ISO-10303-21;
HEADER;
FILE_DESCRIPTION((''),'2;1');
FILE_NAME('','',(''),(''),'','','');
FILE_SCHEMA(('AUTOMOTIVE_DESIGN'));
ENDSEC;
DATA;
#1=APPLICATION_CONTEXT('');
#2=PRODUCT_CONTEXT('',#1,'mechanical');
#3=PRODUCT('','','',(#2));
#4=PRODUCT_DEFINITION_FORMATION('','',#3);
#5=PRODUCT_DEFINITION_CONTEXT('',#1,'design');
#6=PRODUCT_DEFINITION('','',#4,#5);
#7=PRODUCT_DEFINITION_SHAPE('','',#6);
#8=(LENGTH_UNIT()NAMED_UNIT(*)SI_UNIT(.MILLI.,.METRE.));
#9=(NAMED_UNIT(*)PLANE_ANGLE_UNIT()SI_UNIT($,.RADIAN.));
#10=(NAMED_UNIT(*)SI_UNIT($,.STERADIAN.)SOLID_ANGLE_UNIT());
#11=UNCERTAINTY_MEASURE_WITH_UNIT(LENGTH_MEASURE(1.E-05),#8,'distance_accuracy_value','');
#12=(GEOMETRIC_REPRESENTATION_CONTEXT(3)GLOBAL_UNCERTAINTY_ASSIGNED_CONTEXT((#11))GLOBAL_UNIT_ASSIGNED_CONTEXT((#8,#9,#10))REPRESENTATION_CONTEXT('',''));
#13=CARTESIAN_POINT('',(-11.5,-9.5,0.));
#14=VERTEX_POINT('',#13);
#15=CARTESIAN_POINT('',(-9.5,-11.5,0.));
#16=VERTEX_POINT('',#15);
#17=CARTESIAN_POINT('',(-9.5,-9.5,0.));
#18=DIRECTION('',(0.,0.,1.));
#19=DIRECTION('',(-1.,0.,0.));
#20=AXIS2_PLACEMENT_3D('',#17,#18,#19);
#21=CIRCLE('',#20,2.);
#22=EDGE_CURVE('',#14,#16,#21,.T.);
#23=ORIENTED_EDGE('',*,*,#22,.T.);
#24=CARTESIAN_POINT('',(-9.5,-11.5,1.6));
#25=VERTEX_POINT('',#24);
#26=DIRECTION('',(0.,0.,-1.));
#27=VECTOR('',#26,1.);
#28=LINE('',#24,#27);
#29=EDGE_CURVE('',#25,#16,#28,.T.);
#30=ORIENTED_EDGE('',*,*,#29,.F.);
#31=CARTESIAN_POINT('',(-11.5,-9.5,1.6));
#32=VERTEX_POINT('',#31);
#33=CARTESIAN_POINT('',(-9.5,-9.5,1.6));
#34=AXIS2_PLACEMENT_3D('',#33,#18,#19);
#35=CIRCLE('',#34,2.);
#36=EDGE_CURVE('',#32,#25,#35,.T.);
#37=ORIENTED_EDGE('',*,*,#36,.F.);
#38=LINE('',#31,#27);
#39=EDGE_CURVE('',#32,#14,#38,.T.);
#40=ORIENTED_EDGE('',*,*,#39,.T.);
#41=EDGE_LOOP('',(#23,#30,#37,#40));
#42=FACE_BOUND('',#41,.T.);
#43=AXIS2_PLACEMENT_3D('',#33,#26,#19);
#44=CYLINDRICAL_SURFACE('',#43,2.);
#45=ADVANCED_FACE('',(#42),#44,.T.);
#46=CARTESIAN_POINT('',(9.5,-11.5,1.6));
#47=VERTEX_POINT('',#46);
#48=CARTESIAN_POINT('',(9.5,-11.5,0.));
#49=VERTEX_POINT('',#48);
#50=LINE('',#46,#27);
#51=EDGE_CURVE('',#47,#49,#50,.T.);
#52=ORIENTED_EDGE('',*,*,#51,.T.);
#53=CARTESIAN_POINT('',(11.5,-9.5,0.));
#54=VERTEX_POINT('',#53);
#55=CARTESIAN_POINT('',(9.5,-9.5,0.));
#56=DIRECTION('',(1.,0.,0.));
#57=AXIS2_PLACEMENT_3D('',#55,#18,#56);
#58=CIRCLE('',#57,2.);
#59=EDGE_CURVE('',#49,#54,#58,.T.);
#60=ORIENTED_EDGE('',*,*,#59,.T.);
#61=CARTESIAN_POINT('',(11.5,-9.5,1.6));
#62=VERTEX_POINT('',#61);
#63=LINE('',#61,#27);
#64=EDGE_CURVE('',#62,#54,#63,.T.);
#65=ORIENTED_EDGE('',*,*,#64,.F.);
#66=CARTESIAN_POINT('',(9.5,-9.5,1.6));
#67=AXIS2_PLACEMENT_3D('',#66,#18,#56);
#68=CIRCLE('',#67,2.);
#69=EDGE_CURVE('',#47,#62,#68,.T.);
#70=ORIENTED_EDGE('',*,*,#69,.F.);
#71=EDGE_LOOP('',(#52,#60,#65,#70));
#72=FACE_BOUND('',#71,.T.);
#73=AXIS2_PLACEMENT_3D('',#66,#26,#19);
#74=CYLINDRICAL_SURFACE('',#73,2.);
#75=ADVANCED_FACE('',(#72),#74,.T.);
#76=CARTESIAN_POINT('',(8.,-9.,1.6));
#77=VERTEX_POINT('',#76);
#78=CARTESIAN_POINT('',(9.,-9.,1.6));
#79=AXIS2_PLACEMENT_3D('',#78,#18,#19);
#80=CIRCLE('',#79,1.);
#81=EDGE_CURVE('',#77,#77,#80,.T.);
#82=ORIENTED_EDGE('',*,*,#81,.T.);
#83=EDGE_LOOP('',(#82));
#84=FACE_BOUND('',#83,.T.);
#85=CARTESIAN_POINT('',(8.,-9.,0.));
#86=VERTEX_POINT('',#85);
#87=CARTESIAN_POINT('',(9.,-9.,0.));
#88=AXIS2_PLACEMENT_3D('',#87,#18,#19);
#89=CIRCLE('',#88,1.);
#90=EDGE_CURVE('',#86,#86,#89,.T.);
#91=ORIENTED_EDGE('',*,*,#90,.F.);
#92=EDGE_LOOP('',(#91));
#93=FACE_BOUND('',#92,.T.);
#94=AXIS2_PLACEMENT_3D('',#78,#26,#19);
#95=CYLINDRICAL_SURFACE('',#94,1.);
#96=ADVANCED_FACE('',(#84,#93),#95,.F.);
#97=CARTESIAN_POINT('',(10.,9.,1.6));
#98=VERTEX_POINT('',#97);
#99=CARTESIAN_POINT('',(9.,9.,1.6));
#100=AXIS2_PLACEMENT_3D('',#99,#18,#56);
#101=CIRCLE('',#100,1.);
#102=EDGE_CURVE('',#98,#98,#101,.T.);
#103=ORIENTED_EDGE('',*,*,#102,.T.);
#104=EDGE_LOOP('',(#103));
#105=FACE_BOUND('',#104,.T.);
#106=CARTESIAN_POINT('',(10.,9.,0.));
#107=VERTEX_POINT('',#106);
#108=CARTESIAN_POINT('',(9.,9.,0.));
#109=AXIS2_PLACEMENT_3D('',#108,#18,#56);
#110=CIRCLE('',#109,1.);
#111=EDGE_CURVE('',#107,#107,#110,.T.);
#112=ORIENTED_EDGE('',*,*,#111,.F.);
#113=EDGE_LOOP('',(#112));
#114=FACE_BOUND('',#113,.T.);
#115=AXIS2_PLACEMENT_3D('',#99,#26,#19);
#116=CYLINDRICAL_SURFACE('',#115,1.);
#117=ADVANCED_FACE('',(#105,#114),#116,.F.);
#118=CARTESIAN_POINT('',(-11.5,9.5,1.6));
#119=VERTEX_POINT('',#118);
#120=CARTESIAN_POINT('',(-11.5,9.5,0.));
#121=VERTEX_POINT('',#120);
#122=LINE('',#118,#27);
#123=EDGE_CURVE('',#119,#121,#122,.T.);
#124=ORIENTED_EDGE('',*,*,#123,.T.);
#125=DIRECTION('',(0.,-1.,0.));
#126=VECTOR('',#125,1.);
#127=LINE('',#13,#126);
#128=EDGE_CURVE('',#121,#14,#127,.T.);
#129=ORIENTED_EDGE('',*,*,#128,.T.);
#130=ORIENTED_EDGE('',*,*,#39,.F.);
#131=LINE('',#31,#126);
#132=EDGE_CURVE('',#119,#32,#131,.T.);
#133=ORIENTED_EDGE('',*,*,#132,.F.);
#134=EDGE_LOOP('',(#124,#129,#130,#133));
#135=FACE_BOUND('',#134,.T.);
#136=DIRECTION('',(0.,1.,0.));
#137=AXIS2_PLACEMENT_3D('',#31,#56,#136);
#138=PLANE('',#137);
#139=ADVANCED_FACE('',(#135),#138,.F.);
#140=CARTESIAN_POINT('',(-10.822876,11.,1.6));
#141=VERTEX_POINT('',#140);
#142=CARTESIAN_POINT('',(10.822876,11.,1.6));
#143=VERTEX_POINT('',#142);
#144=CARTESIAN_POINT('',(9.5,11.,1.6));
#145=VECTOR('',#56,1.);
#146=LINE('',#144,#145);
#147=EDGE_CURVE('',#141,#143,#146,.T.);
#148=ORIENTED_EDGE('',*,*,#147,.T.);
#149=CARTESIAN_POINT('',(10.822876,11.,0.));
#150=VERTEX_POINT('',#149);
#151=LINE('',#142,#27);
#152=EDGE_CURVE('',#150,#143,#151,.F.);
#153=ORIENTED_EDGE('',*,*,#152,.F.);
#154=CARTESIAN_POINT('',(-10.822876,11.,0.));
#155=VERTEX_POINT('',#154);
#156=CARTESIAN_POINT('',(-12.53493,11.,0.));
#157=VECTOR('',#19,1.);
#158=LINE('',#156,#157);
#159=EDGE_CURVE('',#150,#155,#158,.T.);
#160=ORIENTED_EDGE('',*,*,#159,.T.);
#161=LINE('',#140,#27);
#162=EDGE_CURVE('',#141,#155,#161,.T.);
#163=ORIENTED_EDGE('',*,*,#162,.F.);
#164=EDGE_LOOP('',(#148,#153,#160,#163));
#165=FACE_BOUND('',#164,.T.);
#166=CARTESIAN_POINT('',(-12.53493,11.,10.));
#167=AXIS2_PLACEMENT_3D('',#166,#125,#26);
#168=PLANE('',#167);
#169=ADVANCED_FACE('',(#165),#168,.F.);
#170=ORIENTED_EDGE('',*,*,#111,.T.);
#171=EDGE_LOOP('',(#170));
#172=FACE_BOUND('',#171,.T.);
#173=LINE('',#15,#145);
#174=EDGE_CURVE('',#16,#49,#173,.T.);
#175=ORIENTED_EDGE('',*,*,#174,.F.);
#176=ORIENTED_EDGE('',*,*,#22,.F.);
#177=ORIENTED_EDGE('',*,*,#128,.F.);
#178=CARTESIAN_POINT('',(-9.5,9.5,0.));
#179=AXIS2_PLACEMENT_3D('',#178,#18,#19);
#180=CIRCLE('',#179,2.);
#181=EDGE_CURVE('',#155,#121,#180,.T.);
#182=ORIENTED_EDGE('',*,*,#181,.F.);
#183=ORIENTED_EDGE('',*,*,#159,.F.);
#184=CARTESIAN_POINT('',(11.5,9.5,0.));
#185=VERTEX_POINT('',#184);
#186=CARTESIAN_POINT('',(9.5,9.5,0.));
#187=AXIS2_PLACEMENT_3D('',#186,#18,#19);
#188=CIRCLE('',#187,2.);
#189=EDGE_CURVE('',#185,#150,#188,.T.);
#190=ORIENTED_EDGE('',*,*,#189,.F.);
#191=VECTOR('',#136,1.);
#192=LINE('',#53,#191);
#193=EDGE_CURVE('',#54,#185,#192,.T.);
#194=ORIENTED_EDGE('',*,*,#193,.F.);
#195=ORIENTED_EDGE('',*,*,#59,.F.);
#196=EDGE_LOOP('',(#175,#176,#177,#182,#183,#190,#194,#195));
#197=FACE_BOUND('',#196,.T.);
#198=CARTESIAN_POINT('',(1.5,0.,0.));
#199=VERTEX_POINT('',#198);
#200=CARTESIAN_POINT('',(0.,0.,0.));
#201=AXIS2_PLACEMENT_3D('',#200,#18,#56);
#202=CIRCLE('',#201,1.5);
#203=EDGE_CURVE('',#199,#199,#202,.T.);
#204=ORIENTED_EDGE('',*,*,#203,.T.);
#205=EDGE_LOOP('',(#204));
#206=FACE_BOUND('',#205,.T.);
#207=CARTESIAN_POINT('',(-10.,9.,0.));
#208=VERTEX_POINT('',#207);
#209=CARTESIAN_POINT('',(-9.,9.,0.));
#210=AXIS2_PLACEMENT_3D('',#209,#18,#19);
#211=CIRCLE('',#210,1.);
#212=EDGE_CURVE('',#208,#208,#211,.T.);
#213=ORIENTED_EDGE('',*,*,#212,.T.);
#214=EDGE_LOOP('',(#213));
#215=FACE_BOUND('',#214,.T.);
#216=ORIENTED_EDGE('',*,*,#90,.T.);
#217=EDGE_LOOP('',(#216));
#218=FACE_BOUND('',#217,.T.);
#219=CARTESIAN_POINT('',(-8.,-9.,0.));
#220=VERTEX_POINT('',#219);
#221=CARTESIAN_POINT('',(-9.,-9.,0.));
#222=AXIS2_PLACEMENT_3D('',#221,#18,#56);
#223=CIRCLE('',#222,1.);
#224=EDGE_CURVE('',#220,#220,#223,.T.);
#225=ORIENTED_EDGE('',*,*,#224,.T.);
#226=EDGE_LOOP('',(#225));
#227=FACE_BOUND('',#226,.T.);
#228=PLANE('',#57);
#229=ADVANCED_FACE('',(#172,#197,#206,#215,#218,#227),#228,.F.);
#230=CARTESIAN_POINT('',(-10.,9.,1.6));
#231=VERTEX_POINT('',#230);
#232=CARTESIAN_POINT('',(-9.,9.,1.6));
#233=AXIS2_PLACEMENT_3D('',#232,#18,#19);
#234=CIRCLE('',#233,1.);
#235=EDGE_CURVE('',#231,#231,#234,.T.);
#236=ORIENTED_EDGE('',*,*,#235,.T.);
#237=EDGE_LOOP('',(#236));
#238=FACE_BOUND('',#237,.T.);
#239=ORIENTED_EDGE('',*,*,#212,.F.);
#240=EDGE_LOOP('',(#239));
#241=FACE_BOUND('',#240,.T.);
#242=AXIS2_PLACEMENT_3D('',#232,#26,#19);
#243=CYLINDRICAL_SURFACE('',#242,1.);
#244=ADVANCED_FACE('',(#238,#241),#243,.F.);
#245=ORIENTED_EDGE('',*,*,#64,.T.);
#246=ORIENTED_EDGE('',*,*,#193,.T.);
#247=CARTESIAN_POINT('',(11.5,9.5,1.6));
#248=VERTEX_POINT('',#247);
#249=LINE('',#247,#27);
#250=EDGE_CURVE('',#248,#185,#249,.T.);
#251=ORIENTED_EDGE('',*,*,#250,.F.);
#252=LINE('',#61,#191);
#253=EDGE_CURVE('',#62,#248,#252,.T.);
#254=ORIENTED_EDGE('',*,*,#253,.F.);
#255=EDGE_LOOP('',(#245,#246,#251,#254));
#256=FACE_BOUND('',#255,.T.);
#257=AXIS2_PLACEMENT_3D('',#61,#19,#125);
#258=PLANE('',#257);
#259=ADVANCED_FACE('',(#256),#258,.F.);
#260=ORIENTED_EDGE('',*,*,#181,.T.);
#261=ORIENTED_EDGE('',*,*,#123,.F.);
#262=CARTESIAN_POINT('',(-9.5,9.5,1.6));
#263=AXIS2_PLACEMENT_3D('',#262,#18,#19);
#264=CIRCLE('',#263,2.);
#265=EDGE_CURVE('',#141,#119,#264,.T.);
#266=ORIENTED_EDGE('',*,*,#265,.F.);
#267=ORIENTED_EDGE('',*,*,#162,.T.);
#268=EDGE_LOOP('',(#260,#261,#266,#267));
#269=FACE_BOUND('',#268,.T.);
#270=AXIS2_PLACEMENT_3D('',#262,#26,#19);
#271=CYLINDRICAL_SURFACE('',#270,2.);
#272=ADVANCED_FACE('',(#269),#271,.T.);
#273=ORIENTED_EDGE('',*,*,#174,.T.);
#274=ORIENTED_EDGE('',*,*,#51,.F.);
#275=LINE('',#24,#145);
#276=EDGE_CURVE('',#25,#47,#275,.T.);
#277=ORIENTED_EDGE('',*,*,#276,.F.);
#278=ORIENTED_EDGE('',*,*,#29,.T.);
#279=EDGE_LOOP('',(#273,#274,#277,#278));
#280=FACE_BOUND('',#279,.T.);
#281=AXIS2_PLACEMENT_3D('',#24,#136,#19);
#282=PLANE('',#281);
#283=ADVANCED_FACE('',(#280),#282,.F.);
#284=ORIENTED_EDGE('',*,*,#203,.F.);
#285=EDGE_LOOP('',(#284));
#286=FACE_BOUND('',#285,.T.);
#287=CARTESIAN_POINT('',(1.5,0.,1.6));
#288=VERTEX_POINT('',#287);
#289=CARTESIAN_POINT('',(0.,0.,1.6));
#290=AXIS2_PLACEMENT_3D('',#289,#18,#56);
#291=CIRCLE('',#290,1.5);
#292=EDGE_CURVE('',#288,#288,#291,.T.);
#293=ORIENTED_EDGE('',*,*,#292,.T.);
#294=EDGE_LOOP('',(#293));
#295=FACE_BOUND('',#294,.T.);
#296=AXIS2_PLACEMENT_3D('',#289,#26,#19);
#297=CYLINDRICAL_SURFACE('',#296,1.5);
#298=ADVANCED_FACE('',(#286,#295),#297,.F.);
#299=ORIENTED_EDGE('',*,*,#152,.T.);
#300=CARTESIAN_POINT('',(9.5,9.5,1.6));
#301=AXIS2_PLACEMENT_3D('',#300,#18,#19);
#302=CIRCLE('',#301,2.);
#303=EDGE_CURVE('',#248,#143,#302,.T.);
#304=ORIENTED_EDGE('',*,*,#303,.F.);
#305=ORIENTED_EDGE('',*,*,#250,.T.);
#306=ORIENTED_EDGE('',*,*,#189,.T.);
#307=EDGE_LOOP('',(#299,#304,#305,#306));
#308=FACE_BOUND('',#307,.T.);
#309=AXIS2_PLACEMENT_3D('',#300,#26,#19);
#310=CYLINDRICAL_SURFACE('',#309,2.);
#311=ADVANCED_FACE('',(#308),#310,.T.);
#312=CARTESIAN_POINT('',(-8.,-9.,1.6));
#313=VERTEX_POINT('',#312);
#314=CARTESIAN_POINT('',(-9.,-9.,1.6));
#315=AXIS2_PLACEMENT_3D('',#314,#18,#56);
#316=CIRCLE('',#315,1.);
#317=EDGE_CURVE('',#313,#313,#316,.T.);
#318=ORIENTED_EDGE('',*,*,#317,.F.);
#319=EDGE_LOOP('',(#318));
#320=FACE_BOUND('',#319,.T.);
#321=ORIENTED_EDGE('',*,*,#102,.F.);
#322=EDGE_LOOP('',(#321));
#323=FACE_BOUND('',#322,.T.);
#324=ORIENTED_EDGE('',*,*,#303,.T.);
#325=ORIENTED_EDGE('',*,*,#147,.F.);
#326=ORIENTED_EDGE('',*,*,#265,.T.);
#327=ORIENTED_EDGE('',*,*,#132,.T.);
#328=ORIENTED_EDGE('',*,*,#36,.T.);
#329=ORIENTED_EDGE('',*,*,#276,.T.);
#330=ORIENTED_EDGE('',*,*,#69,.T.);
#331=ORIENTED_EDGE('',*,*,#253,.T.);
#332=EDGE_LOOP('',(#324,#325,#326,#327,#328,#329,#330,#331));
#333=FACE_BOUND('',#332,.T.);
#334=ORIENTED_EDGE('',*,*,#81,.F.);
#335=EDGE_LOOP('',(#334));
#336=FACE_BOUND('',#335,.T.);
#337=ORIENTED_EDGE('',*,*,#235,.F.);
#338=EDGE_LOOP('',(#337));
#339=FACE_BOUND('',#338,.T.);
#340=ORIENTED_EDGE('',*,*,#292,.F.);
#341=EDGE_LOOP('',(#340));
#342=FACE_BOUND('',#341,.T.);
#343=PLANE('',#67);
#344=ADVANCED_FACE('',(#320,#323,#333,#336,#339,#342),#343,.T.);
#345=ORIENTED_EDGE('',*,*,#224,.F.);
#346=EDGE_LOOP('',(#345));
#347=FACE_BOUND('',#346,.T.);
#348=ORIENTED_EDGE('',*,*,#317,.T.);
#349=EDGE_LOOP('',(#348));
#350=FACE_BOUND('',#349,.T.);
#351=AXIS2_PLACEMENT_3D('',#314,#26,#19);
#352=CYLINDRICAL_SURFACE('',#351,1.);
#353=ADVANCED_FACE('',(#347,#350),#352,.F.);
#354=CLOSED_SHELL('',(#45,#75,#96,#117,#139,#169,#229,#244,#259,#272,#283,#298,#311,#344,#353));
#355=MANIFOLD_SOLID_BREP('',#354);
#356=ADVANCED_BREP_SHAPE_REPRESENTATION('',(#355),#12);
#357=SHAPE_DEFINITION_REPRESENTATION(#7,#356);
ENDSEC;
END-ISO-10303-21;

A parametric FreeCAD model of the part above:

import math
import FreeCAD as App
import Part
import Sketcher
Q = App.Units.Quantity

doc = App.newDocument("Part")
body = doc.addObject("PartDesign::Body", "Body")

sketch1 = body.newObject("Sketcher::SketchObject", "Sketch")
sketch1.AttachmentSupport = (doc.getObject("XY_Plane"), [""])
sketch1.MapMode = "FlatFace"
sketch1.addGeometry([
    Part.LineSegment(App.Vector(-9.5, -11.5, 0), App.Vector(9.5, -11.5, 0)),
    Part.ArcOfCircle(Part.Circle(App.Vector(9.5, -9.5, 0), App.Vector(0, 0, 1), 2), math.radians(-90), math.radians(0)),
    Part.LineSegment(App.Vector(11.5, -9.5, 0), App.Vector(11.5, 9.5, 0)),
    Part.ArcOfCircle(Part.Circle(App.Vector(9.5, 9.5, 0), App.Vector(0, 0, 1), 2), math.radians(0), math.radians(90)),
    Part.LineSegment(App.Vector(9.5, 11.5, 0), App.Vector(-9.5, 11.5, 0)),
    Part.ArcOfCircle(Part.Circle(App.Vector(-9.5, 9.5, 0), App.Vector(0, 0, 1), 2), math.radians(90), math.radians(180)),
    Part.LineSegment(App.Vector(-11.5, 9.5, 0), App.Vector(-11.5, -9.5, 0)),
    Part.ArcOfCircle(Part.Circle(App.Vector(-9.5, -9.5, 0), App.Vector(0, 0, 1), 2), math.radians(-180), math.radians(-90)),
    Part.Circle(App.Vector(-9, -9, 0), App.Vector(0, 0, 1), 1),
    Part.Circle(App.Vector(9, -9, 0), App.Vector(0, 0, 1), 1),
    Part.Circle(App.Vector(-9, 9, 0), App.Vector(0, 0, 1), 1),
    Part.Circle(App.Vector(0, 0, 0), App.Vector(0, 0, 1), 1.5),
    Part.Circle(App.Vector(9, 9, 0), App.Vector(0, 0, 1), 1),
], False)
sketch1.addConstraint([
    Sketcher.Constraint("Tangent", 0, 2, 1, 1),
    Sketcher.Constraint("Tangent", 1, 2, 2, 1),
    Sketcher.Constraint("Tangent", 2, 2, 3, 1),
    Sketcher.Constraint("Tangent", 3, 2, 4, 1),
    Sketcher.Constraint("Tangent", 4, 2, 5, 1),
    Sketcher.Constraint("Tangent", 5, 2, 6, 1),
    Sketcher.Constraint("Tangent", 6, 2, 7, 1),
    Sketcher.Constraint("Tangent", 7, 2, 0, 1),
    Sketcher.Constraint("Horizontal", 0),
    Sketcher.Constraint("Vertical", 2),
    Sketcher.Constraint("Horizontal", 4),
    Sketcher.Constraint("Vertical", 6),
    Sketcher.Constraint("Coincident", 11, 3, -1, 1),
    Sketcher.Constraint("Equal", 1, 3),
    Sketcher.Constraint("Equal", 3, 5),
    Sketcher.Constraint("Equal", 5, 7),
    Sketcher.Constraint("Equal", 8, 9),
    Sketcher.Constraint("Equal", 9, 10),
    Sketcher.Constraint("Equal", 10, 12),
    Sketcher.Constraint("Symmetric", 1, 3, 5, 3, -1, 1),
    Sketcher.Constraint("Symmetric", 9, 3, 10, 3, -1, 1),
    Sketcher.Constraint("Symmetric", 8, 3, 12, 3, -1, 1),
    Sketcher.Constraint("Symmetric", 8, 3, 9, 3, -2),
    Sketcher.Constraint("Equal", 4, 2),
    Sketcher.Constraint("Diameter", 8, Q("2 mm")),
    Sketcher.Constraint("Diameter", 11, Q("3 mm")),
    Sketcher.Constraint("Radius", 1, Q("2 mm")),
    Sketcher.Constraint("DistanceX", 0, 1, 0, 2, Q("19 mm")),
    Sketcher.Constraint("DistanceX", 8, 3, -1, 1, Q("9 mm")),
    Sketcher.Constraint("DistanceY", 8, 3, -1, 1, Q("9 mm")),
])
pad1 = body.newObject("PartDesign::Pad", "Pad")
pad1.Profile = sketch1
pad1.Length = 1.6

sketch2 = body.newObject("Sketcher::SketchObject", "Sketch001")
sketch2.AttachmentSupport = (doc.getObject("XY_Plane"), [""])
sketch2.MapMode = "FlatFace"
sketch2.addGeometry([
    Part.LineSegment(App.Vector(18.249988, 12.249694, 0), App.Vector(18.249988, 11, 0)),
    Part.LineSegment(App.Vector(18.249988, 11, 0), App.Vector(-12.53493, 11, 0)),
    Part.LineSegment(App.Vector(-12.53493, 11, 0), App.Vector(-12.53493, 12.249694, 0)),
    Part.LineSegment(App.Vector(-12.53493, 12.249694, 0), App.Vector(18.249988, 12.249694, 0)),
], False)
sketch2.addConstraint([
    Sketcher.Constraint("Coincident", 0, 2, 1, 1),
    Sketcher.Constraint("Coincident", 1, 2, 2, 1),
    Sketcher.Constraint("Coincident", 2, 2, 3, 1),
    Sketcher.Constraint("Coincident", 3, 2, 0, 1),
    Sketcher.Constraint("Vertical", 0),
    Sketcher.Constraint("Horizontal", 1),
    Sketcher.Constraint("Vertical", 2),
    Sketcher.Constraint("Horizontal", 3),
    Sketcher.Constraint("DistanceY", -1, 1, 0, 2, Q("11 mm")),
    Sketcher.Constraint("DistanceX", 1, 2, 1, 1, Q("30.784918 mm")),
    Sketcher.Constraint("DistanceY", 0, 2, 0, 1, Q("1.249694 mm")),
    Sketcher.Constraint("DistanceX", -1, 1, 0, 2, Q("18.249988 mm")),
])
pocket1 = body.newObject("PartDesign::Pocket", "Pocket")
pocket1.Profile = sketch2
pocket1.Length = 10
pocket1.Reversed = True

doc.recompute()
